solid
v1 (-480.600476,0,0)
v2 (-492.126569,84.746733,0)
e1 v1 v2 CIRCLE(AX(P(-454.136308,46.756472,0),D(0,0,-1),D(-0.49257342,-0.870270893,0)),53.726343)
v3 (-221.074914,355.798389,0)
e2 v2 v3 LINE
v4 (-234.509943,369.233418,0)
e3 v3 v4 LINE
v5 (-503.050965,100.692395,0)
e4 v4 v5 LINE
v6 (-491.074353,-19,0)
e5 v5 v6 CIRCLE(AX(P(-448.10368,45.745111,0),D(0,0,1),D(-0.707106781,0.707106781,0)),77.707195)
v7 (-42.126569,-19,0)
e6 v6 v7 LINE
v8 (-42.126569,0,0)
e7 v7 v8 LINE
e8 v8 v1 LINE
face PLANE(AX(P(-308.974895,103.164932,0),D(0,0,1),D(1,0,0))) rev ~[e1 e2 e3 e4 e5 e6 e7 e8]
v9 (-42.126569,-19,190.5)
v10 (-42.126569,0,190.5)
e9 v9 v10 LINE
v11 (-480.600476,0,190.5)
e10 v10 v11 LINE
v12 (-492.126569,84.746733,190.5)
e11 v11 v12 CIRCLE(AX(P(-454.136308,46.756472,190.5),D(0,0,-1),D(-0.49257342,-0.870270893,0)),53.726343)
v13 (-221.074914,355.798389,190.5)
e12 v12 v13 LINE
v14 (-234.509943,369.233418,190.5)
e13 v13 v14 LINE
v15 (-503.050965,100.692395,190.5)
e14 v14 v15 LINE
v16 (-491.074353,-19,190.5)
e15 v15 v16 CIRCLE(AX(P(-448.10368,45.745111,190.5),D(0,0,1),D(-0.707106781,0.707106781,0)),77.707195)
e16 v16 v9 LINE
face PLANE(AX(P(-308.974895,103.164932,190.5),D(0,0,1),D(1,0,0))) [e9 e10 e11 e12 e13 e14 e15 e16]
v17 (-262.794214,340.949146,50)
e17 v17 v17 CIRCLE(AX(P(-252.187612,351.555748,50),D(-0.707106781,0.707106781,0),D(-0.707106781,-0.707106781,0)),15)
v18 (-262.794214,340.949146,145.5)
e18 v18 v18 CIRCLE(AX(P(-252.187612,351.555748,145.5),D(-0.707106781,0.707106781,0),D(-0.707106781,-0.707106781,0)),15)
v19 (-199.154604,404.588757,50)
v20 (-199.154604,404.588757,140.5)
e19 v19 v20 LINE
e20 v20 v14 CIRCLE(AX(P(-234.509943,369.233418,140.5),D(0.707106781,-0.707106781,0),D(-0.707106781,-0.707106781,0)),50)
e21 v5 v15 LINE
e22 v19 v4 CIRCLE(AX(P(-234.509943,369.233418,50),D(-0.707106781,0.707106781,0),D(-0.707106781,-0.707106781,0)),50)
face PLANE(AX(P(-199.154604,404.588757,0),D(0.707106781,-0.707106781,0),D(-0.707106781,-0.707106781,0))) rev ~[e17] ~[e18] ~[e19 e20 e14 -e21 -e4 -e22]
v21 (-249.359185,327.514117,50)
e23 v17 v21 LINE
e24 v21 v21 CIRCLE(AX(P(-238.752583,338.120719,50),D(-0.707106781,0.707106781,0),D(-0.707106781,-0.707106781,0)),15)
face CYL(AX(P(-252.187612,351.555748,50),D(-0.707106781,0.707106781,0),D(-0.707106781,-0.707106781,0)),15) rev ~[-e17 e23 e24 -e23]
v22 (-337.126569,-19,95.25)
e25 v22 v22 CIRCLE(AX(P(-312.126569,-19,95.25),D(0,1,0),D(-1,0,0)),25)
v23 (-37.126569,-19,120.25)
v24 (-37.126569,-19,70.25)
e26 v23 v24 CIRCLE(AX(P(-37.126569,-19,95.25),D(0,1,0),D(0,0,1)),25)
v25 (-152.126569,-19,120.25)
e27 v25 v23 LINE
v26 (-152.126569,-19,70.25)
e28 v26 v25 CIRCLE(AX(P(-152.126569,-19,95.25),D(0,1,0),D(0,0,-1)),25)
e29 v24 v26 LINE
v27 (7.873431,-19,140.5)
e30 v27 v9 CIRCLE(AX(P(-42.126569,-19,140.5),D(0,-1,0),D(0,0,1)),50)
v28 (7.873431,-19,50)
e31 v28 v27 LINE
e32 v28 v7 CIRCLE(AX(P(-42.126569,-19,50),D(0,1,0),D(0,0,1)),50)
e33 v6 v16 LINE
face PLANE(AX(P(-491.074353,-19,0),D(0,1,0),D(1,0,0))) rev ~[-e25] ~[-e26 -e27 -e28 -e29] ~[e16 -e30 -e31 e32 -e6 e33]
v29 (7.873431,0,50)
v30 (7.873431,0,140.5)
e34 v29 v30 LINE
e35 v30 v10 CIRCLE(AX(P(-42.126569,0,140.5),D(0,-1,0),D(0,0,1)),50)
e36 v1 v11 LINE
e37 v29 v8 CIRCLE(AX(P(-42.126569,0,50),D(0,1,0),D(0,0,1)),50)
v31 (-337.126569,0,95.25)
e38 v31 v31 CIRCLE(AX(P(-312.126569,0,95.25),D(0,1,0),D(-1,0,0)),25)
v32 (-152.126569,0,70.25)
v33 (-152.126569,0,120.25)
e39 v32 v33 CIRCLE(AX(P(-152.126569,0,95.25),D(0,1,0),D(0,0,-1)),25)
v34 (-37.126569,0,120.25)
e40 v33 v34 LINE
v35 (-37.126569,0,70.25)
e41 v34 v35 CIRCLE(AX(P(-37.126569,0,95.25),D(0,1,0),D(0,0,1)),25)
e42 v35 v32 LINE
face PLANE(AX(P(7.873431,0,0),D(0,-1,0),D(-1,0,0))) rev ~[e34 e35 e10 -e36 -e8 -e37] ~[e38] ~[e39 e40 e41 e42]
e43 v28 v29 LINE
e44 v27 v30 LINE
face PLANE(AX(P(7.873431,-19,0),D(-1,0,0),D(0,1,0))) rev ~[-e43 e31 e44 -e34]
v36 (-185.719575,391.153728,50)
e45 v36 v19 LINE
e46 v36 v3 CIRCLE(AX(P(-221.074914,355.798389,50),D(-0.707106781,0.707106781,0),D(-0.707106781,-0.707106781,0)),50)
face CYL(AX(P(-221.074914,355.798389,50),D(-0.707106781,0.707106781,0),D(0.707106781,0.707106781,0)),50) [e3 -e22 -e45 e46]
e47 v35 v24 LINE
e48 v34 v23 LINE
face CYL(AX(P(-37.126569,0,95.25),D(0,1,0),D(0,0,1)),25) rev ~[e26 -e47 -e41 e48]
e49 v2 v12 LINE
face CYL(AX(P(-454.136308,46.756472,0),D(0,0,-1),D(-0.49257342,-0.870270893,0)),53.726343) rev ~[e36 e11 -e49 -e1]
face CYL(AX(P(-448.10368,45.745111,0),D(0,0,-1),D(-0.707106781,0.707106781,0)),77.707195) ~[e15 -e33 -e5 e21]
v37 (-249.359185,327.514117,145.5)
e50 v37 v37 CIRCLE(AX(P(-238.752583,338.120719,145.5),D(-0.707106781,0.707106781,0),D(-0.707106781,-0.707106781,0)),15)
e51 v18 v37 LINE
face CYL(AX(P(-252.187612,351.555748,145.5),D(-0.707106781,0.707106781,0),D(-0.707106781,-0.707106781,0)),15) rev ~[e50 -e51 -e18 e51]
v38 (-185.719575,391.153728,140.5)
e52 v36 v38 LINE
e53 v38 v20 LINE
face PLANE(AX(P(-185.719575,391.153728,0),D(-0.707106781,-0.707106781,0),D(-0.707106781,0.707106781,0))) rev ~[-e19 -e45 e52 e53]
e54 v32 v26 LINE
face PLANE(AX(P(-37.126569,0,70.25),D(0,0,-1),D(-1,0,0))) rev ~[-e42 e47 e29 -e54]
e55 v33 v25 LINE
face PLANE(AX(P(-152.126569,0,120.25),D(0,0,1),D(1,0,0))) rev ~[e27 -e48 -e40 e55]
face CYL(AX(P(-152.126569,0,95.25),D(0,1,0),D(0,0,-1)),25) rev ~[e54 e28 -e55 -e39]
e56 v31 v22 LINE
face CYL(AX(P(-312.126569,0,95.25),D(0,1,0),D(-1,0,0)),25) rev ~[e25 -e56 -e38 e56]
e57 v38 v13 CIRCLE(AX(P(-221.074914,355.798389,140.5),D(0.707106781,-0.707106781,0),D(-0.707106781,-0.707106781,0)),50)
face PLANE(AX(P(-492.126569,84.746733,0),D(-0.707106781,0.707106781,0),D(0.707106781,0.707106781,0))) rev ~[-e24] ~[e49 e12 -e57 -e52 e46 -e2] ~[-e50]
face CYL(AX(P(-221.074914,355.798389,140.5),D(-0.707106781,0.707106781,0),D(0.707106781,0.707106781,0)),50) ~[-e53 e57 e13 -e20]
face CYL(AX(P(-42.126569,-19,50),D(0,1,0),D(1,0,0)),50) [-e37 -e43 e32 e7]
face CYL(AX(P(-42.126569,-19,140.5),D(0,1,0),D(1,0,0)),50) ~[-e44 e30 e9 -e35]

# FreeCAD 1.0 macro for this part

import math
import FreeCAD as App
import Part
import Sketcher

V = App.Vector
Q = App.Units.Quantity


def edges_at(feature, points):
    """Names of the edges that pass closest to the given points."""
    edges = feature.Shape.Edges
    near = lambda p: min(range(len(edges)), key=lambda i: edges[i].distToShape(Part.Vertex(*p))[0])
    return sorted({f"Edge{near(p) + 1}" for p in points})

doc = App.newDocument("Part")
params = doc.addObject("Spreadsheet::Sheet", "Params")
for row, (alias, value) in enumerate([
    ("sketch1_height", "19 mm"),
    ("sketch1_length", "19 mm"),
    ("pad1_length", "190.5 mm"),
    ("fillet_radius", "50 mm"),
    ("sketch2_diameter", "30 mm"),
    ("pocket1_length", "101.6 mm"),
    ("sketch3_diameter", "50 mm"),
    ("sketch3_width", "115 mm"),
    ("pocket2_length", "101.6 mm"),
], start=1):
    params.set(f"A{row}", alias)
    params.set(f"B{row}", "=" + value)
    params.setAlias(f"B{row}", alias)

body = doc.addObject("PartDesign::Body", "Body")

# Sketch on XY plane
sketch1 = doc.addObject("Sketcher::SketchObject", "Sketch")
body.addObject(sketch1)
sketch1.AttachmentSupport = (doc.XY_Plane, [""])
sketch1.MapMode = "FlatFace"
sketch1.addGeometry([
    Part.LineSegment(V(7.873431, 0, 0), V(-480.600476, 0, 0)),  # 0
    Part.ArcOfCircle(Part.Circle(V(-454.136308, 46.756472, 0), V(0, 0, 1), 53.726343), math.radians(135), math.radians(240.490134)),  # 1
    Part.LineSegment(V(-492.126569, 84.746733, 0), V(-185.719575, 391.153728, 0)),  # 2
    Part.LineSegment(V(-185.719575, 391.153728, 0), V(-199.154604, 404.588757, 0)),  # 3
    Part.LineSegment(V(-199.154604, 404.588757, 0), V(-503.050965, 100.692395, 0)),  # 4
    Part.ArcOfCircle(Part.Circle(V(-448.10368, 45.745111, 0), V(0, 0, 1), 77.707195), math.radians(135), math.radians(236.428174)),  # 5
    Part.LineSegment(V(-491.074353, -19, 0), V(7.873431, -19, 0)),  # 6
    Part.LineSegment(V(7.873431, -19, 0), V(7.873431, 0, 0)),  # 7
], False)
sketch1.addConstraint([
    Sketcher.Constraint("Coincident", 0, 2, 1, 2),
    Sketcher.Constraint("Tangent", 1, 1, 2, 1),
    Sketcher.Constraint("Coincident", 2, 2, 3, 1),
    Sketcher.Constraint("Coincident", 3, 2, 4, 1),
    Sketcher.Constraint("Tangent", 4, 2, 5, 1),
    Sketcher.Constraint("Coincident", 5, 2, 6, 1),
    Sketcher.Constraint("Coincident", 6, 2, 7, 1),
    Sketcher.Constraint("Coincident", 7, 2, 0, 1),
    Sketcher.Constraint("Horizontal", 0),
    Sketcher.Constraint("Horizontal", 6),
    Sketcher.Constraint("Vertical", 7),
    Sketcher.Constraint("PointOnObject", 0, 2, -1),
    Sketcher.Constraint("Perpendicular", 2, 3),
    Sketcher.Constraint("Perpendicular", 3, 4),
    Sketcher.Constraint("DistanceY", 7, 1, 7, 2, Q("19 mm")),
    Sketcher.Constraint("Angle", 2, Q("45 deg")),
    Sketcher.Constraint("Distance", 3, Q("19 mm")),
    Sketcher.Constraint("Radius", 1, Q("53.726343 mm")),
    Sketcher.Constraint("Radius", 5, Q("77.707195 mm")),
    Sketcher.Constraint("DistanceX", 0, 2, 2, 2, Q("294.880902 mm")),
    Sketcher.Constraint("DistanceX", 0, 2, 0, 1, Q("488.473907 mm")),
    Sketcher.Constraint("DistanceX", 6, 1, 6, 2, Q("498.947784 mm")),
    Sketcher.Constraint("DistanceX", 5, 3, -1, 1, Q("448.10368 mm")),
    Sketcher.Constraint("DistanceY", -1, 1, 5, 3, Q("45.745111 mm")),
])
sketch1.setExpression("Constraints[14]", "Params.sketch1_height")
sketch1.setExpression("Constraints[16]", "Params.sketch1_length")
pad1 = doc.addObject("PartDesign::Pad", "Pad")
body.addObject(pad1)
pad1.Profile = sketch1
pad1.setExpression("Length", "Params.pad1_length")
doc.recompute()

fillet = doc.addObject("PartDesign::Fillet", "Fillet")
body.addObject(fillet)
fillet.Base = (pad1, edges_at(pad1, [
    (-192.437, 397.871, 190.5),
    (-192.437, 397.871, 0),
    (7.873, -9.5, 190.5),
    (7.873, -9.5, 0),
]))
fillet.setExpression("Radius", "Params.fillet_radius")

# Sketch on an angled plane
sketch2 = doc.addObject("Sketcher::SketchObject", "Sketch001")
body.addObject(sketch2)
sketch2.Placement = App.Placement(V(-301.87168, 301.87168, 0), App.Rotation(V(-0.707106781, -0.707106781, 0), V(0, 0, 0.999999999), V(-0.707106781, 0.707106781, 0), "ZXY"))
sketch2.addGeometry([
    Part.Circle(V(-70.263883, 145.5, 0), V(0, 0, 1), 15),
    Part.Circle(V(-70.263883, 50, 0), V(0, 0, 1), 15),
], False)
sketch2.addConstraint([
    Sketcher.Constraint("Equal", 0, 1),
    Sketcher.Constraint("Vertical", 0, 3, 1, 3),
    Sketcher.Constraint("Diameter", 0, Q("30 mm")),
    Sketcher.Constraint("DistanceY", -1, 1, 1, 3, Q("50 mm")),
    Sketcher.Constraint("DistanceY", -1, 1, 0, 3, Q("145.5 mm")),
    Sketcher.Constraint("DistanceX", 0, 3, -1, 1, Q("70.263883 mm")),
])
sketch2.setExpression("Constraints[2]", "Params.sketch2_diameter")
pocket1 = doc.addObject("PartDesign::Pocket", "Pocket")
body.addObject(pocket1)
pocket1.Profile = sketch2
pocket1.setExpression("Length", "Params.pocket1_length")

# Sketch on XZ plane
sketch3 = doc.addObject("Sketcher::SketchObject", "Sketch002")
body.addObject(sketch3)
sketch3.AttachmentSupport = (doc.XZ_Plane, [""])
sketch3.MapMode = "FlatFace"
sketch3.addGeometry([
    Part.Circle(V(-312.126569, 95.25, 0), V(0, 0, 1), 25),  # 0
    Part.LineSegment(V(-152.126569, 120.25, 0), V(-37.126569, 120.25, 0)),  # 1
    Part.ArcOfCircle(Part.Circle(V(-37.126569, 95.25, 0), V(0, 0, 1), 25), math.radians(-90), math.radians(90)),  # 2
    Part.LineSegment(V(-37.126569, 70.25, 0), V(-152.126569, 70.25, 0)),  # 3
    Part.ArcOfCircle(Part.Circle(V(-152.126569, 95.25, 0), V(0, 0, 1), 25), math.radians(90), math.radians(270)),  # 4
], False)
sketch3.addConstraint([
    Sketcher.Constraint("Tangent", 1, 2, 2, 2),
    Sketcher.Constraint("Tangent", 2, 1, 3, 1),
    Sketcher.Constraint("Tangent", 3, 2, 4, 2),
    Sketcher.Constraint("Tangent", 4, 1, 1, 1),
    Sketcher.Constraint("Horizontal", 1),
    Sketcher.Constraint("Horizontal", 3),
    Sketcher.Constraint("Equal", 0, 2),
    Sketcher.Constraint("Horizontal", 0, 3, 2, 3),
    Sketcher.Constraint("Diameter", 0, Q("50 mm")),
    Sketcher.Constraint("DistanceX", 1, 1, 1, 2, Q("115 mm")),
    Sketcher.Constraint("DistanceX", 0, 3, 2, 3, Q("275 mm")),
    Sketcher.Constraint("DistanceY", -1, 1, 0, 3, Q("95.25 mm")),
    Sketcher.Constraint("DistanceX", 0, 3, -1, 1, Q("312.126569 mm")),
])
sketch3.setExpression("Constraints[8]", "Params.sketch3_diameter")
sketch3.setExpression("Constraints[9]", "Params.sketch3_width")
pocket2 = doc.addObject("PartDesign::Pocket", "Pocket001")
body.addObject(pocket2)
pocket2.Profile = sketch3
pocket2.setExpression("Length", "Params.pocket2_length")
pocket2.Reversed = True

doc.recompute()
